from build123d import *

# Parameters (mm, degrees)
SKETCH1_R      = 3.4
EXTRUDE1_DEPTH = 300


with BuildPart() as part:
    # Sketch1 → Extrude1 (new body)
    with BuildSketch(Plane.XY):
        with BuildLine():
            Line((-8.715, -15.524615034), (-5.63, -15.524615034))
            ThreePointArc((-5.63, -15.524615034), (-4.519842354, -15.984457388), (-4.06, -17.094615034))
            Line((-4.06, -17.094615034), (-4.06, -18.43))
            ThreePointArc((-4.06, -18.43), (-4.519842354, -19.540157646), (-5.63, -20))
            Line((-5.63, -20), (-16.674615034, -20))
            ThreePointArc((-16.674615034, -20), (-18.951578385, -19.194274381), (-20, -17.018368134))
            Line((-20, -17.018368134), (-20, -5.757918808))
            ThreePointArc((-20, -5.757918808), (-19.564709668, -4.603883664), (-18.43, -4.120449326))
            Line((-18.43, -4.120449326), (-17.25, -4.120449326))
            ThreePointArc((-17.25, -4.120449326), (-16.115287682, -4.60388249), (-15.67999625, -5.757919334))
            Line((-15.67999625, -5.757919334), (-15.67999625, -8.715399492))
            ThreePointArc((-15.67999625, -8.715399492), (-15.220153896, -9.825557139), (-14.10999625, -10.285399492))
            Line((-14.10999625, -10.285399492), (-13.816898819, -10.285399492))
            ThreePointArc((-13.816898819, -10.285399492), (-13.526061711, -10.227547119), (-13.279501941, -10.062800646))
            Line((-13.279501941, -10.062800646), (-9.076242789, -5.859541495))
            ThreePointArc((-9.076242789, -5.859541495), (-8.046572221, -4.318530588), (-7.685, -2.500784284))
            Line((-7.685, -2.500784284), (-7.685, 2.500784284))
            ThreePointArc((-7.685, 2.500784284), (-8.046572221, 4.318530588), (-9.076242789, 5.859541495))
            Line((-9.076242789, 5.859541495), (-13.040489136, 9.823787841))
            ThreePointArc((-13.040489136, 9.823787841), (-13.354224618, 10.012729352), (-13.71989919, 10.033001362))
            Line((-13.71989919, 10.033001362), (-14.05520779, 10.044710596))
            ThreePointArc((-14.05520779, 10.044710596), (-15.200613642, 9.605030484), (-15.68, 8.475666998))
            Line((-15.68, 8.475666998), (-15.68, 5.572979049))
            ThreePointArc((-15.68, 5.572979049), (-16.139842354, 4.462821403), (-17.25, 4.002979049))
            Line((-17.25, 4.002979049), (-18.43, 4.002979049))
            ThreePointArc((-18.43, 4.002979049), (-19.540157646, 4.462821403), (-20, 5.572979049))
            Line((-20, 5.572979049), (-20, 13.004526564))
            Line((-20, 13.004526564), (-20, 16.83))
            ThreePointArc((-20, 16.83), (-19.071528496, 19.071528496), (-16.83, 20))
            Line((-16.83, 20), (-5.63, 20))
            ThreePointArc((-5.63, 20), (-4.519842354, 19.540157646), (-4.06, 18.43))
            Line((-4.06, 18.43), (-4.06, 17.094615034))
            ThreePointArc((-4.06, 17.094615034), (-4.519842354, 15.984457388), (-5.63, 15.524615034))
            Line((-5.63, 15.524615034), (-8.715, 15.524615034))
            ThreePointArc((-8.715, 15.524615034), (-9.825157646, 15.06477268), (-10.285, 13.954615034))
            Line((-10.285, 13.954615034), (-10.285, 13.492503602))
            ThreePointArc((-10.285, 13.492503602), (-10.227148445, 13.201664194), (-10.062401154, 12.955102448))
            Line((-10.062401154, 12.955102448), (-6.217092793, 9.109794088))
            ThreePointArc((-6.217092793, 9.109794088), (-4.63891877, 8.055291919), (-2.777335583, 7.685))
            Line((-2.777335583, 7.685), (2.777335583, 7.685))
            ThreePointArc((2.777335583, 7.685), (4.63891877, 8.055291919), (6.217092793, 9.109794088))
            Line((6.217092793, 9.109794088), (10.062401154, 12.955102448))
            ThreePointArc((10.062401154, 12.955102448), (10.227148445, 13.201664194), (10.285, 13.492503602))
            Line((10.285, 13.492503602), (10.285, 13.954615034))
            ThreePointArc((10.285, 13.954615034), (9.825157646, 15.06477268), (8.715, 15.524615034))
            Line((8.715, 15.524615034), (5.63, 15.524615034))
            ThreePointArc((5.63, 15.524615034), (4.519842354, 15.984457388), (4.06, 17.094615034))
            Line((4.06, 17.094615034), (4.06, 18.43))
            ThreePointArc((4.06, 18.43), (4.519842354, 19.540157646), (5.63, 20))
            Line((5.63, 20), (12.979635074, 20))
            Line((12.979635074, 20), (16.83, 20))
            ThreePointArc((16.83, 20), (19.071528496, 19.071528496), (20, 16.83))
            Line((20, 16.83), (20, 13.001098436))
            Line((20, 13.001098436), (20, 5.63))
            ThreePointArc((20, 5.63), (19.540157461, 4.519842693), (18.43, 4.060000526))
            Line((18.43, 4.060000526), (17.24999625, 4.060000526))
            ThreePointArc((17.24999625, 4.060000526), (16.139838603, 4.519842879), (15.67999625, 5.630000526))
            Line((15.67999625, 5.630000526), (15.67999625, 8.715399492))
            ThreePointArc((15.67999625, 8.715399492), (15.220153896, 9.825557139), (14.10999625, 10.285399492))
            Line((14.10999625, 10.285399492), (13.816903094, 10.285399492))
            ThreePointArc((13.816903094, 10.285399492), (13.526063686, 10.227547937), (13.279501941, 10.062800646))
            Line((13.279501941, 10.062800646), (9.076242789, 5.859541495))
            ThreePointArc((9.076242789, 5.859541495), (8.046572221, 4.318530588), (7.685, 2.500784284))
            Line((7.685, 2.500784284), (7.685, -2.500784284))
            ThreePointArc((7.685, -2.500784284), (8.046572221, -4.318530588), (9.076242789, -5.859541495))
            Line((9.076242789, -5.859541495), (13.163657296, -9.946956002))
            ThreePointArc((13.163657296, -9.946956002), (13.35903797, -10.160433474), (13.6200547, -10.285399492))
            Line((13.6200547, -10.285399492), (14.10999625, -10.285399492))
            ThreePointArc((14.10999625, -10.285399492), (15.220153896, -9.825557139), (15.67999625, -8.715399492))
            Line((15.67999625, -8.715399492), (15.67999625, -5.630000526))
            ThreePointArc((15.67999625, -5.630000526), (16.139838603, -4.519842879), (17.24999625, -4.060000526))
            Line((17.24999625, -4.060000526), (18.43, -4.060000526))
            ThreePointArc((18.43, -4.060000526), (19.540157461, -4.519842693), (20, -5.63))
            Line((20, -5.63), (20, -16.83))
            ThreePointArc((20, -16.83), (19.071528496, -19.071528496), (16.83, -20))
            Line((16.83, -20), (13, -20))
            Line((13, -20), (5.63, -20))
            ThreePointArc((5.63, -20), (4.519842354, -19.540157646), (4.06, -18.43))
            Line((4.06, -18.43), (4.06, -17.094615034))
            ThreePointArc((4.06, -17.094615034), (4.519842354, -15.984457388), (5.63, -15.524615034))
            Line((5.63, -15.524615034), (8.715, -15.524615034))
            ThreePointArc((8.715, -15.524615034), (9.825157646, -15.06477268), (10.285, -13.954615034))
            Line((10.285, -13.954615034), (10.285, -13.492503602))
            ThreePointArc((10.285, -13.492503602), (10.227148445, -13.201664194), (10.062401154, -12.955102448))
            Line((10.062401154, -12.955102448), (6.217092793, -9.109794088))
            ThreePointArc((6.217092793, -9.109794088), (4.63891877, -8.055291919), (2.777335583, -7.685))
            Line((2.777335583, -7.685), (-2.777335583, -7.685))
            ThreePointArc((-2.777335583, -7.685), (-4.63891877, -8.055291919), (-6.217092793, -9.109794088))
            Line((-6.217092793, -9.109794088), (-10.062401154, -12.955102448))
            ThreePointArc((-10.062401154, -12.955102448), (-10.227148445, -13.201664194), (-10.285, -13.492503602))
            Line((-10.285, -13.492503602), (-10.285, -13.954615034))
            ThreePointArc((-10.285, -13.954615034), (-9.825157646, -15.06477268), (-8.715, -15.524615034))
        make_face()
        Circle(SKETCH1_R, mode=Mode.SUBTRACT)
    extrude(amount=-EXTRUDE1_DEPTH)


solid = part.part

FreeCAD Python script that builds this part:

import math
import FreeCAD as App
import Part
import Sketcher
Q = App.Units.Quantity

doc = App.newDocument("Part")
params = doc.addObject("Spreadsheet::Sheet", "Params")
for row, (alias, value) in enumerate([
    ("sketch1_diameter", "6.8 mm"),
    ("sketch1_radius", "1.57 mm"),
    ("sketch1_radius2", "0.76 mm"),
    ("sketch1_radius3", "3.17 mm"),
    ("sketch1_radius4", "4.75 mm"),
    ("pad1_length", "300 mm"),
], start=1):
    params.set(f"A{row}", alias)
    params.set(f"B{row}", "=" + value)
    params.setAlias(f"B{row}", alias)

body = doc.addObject("PartDesign::Body", "Body")

# Sketch on XY plane
sketch1 = body.newObject("Sketcher::SketchObject", "Sketch")
sketch1.AttachmentSupport = (doc.getObject("XY_Plane"), [""])
sketch1.MapMode = "FlatFace"
sketch1.addGeometry(Part.LineSegment(App.Vector(-5.63, -15.52, 0), App.Vector(-8.71, -15.52, 0)), False)
sketch1.addGeometry(Part.ArcOfCircle(Part.Circle(App.Vector(-8.71, -13.95, 0), App.Vector(0, 0, 1), 1.57), math.radians(-180), math.radians(-90)), False)
sketch1.addGeometry(Part.LineSegment(App.Vector(-10.29, -13.95, 0), App.Vector(-10.29, -13.49, 0)), False)
sketch1.addGeometry(Part.ArcOfCircle(Part.Circle(App.Vector(-9.52, -13.49, 0), App.Vector(0, 0, 1), 0.76), math.radians(135), math.radians(180)), False)
sketch1.addGeometry(Part.LineSegment(App.Vector(-10.06, -12.96, 0), App.Vector(-6.22, -9.11, 0)), False)
sketch1.addGeometry(Part.ArcOfCircle(Part.Circle(App.Vector(-2.78, -12.55, 0), App.Vector(0, 0, 1), 4.86), math.radians(90), math.radians(135)), False)
sketch1.addGeometry(Part.LineSegment(App.Vector(-2.78, -7.68, 0), App.Vector(2.78, -7.68, 0)), False)
sketch1.addGeometry(Part.ArcOfCircle(Part.Circle(App.Vector(2.78, -12.55, 0), App.Vector(0, 0, 1), 4.86), math.radians(45), math.radians(90)), False)
sketch1.addGeometry(Part.LineSegment(App.Vector(6.22, -9.11, 0), App.Vector(10.06, -12.96, 0)), False)
sketch1.addGeometry(Part.ArcOfCircle(Part.Circle(App.Vector(9.52, -13.49, 0), App.Vector(0, 0, 1), 0.76), math.radians(0), math.radians(45)), False)
sketch1.addGeometry(Part.LineSegment(App.Vector(10.29, -13.49, 0), App.Vector(10.29, -13.95, 0)), False)
sketch1.addGeometry(Part.ArcOfCircle(Part.Circle(App.Vector(8.71, -13.95, 0), App.Vector(0, 0, 1), 1.57), math.radians(-90), math.radians(0)), False)
sketch1.addGeometry(Part.LineSegment(App.Vector(8.71, -15.52, 0), App.Vector(5.63, -15.52, 0)), False)
sketch1.addGeometry(Part.ArcOfCircle(Part.Circle(App.Vector(5.63, -17.09, 0), App.Vector(0, 0, 1), 1.57), math.radians(90), math.radians(180)), False)
sketch1.addGeometry(Part.LineSegment(App.Vector(4.06, -17.09, 0), App.Vector(4.06, -18.43, 0)), False)
sketch1.addGeometry(Part.ArcOfCircle(Part.Circle(App.Vector(5.63, -18.43, 0), App.Vector(0, 0, 1), 1.57), math.radians(-180), math.radians(-90)), False)
sketch1.addGeometry(Part.LineSegment(App.Vector(5.63, -20, 0), App.Vector(16.83, -20, 0)), False)
sketch1.addGeometry(Part.ArcOfCircle(Part.Circle(App.Vector(16.83, -16.83, 0), App.Vector(0, 0, 1), 3.17), math.radians(-90), math.radians(0)), False)
sketch1.addGeometry(Part.LineSegment(App.Vector(20, -16.83, 0), App.Vector(20, -5.63, 0)), False)
sketch1.addGeometry(Part.ArcOfCircle(Part.Circle(App.Vector(18.43, -5.63, 0), App.Vector(0, 0, 1), 1.57), math.radians(0), math.radians(90)), False)
sketch1.addGeometry(Part.LineSegment(App.Vector(18.43, -4.06, 0), App.Vector(17.25, -4.06, 0)), False)
sketch1.addGeometry(Part.ArcOfCircle(Part.Circle(App.Vector(17.25, -5.63, 0), App.Vector(0, 0, 1), 1.57), math.radians(90), math.radians(180)), False)
sketch1.addGeometry(Part.LineSegment(App.Vector(15.68, -5.63, 0), App.Vector(15.68, -8.72, 0)), False)
sketch1.addGeometry(Part.ArcOfCircle(Part.Circle(App.Vector(14.11, -8.72, 0), App.Vector(0, 0, 1), 1.57), math.radians(-90), math.radians(0)), False)
sketch1.addGeometry(Part.LineSegment(App.Vector(14.11, -10.29, 0), App.Vector(13.62, -10.29, 0)), False)
sketch1.addGeometry(Part.ArcOfCircle(Part.Circle(App.Vector(13.81, -9.55, 0), App.Vector(0, 0, 1), 0.76), math.radians(-149), math.radians(-105)), False)
sketch1.addGeometry(Part.LineSegment(App.Vector(13.16, -9.95, 0), App.Vector(9.08, -5.86, 0)), False)
sketch1.addGeometry(Part.ArcOfCircle(Part.Circle(App.Vector(12.44, -2.5, 0), App.Vector(0, 0, 1), 4.75), math.radians(-180), math.radians(-135)), False)
sketch1.addGeometry(Part.LineSegment(App.Vector(7.68, -2.5, 0), App.Vector(7.68, 2.5, 0)), False)
sketch1.addGeometry(Part.ArcOfCircle(Part.Circle(App.Vector(12.44, 2.5, 0), App.Vector(0, 0, 1), 4.75), math.radians(135), math.radians(180)), False)
sketch1.addGeometry(Part.LineSegment(App.Vector(9.08, 5.86, 0), App.Vector(13.28, 10.06, 0)), False)
sketch1.addGeometry(Part.ArcOfCircle(Part.Circle(App.Vector(13.82, 9.53, 0), App.Vector(0, 0, 1), 0.76), math.radians(90), math.radians(135)), False)
sketch1.addGeometry(Part.LineSegment(App.Vector(13.82, 10.29, 0), App.Vector(14.11, 10.29, 0)), False)
sketch1.addGeometry(Part.ArcOfCircle(Part.Circle(App.Vector(14.11, 8.72, 0), App.Vector(0, 0, 1), 1.57), math.radians(0), math.radians(90)), False)
sketch1.addGeometry(Part.LineSegment(App.Vector(15.68, 8.72, 0), App.Vector(15.68, 5.63, 0)), False)
sketch1.addGeometry(Part.ArcOfCircle(Part.Circle(App.Vector(17.25, 5.63, 0), App.Vector(0, 0, 1), 1.57), math.radians(180), math.radians(270)), False)
sketch1.addGeometry(Part.LineSegment(App.Vector(17.25, 4.06, 0), App.Vector(18.43, 4.06, 0)), False)
sketch1.addGeometry(Part.ArcOfCircle(Part.Circle(App.Vector(18.43, 5.63, 0), App.Vector(0, 0, 1), 1.57), math.radians(-90), math.radians(0)), False)
sketch1.addGeometry(Part.LineSegment(App.Vector(20, 5.63, 0), App.Vector(20, 16.83, 0)), False)
sketch1.addGeometry(Part.ArcOfCircle(Part.Circle(App.Vector(16.83, 16.83, 0), App.Vector(0, 0, 1), 3.17), math.radians(0), math.radians(90)), False)
sketch1.addGeometry(Part.LineSegment(App.Vector(16.83, 20, 0), App.Vector(5.63, 20, 0)), False)
sketch1.addGeometry(Part.ArcOfCircle(Part.Circle(App.Vector(5.63, 18.43, 0), App.Vector(0, 0, 1), 1.57), math.radians(90), math.radians(180)), False)
sketch1.addGeometry(Part.LineSegment(App.Vector(4.06, 18.43, 0), App.Vector(4.06, 17.09, 0)), False)
sketch1.addGeometry(Part.ArcOfCircle(Part.Circle(App.Vector(5.63, 17.09, 0), App.Vector(0, 0, 1), 1.57), math.radians(-180), math.radians(-90)), False)
sketch1.addGeometry(Part.LineSegment(App.Vector(5.63, 15.52, 0), App.Vector(8.71, 15.52, 0)), False)
sketch1.addGeometry(Part.ArcOfCircle(Part.Circle(App.Vector(8.71, 13.95, 0), App.Vector(0, 0, 1), 1.57), math.radians(0), math.radians(90)), False)
sketch1.addGeometry(Part.LineSegment(App.Vector(10.29, 13.95, 0), App.Vector(10.29, 13.49, 0)), False)
sketch1.addGeometry(Part.ArcOfCircle(Part.Circle(App.Vector(9.52, 13.49, 0), App.Vector(0, 0, 1), 0.76), math.radians(-45), math.radians(0)), False)
sketch1.addGeometry(Part.LineSegment(App.Vector(10.06, 12.96, 0), App.Vector(6.22, 9.11, 0)), False)
sketch1.addGeometry(Part.ArcOfCircle(Part.Circle(App.Vector(2.78, 12.55, 0), App.Vector(0, 0, 1), 4.86), math.radians(-90), math.radians(-45)), False)
sketch1.addGeometry(Part.LineSegment(App.Vector(2.78, 7.68, 0), App.Vector(-2.78, 7.68, 0)), False)
sketch1.addGeometry(Part.ArcOfCircle(Part.Circle(App.Vector(-2.78, 12.55, 0), App.Vector(0, 0, 1), 4.86), math.radians(-135), math.radians(-90)), False)
sketch1.addGeometry(Part.LineSegment(App.Vector(-6.22, 9.11, 0), App.Vector(-10.06, 12.96, 0)), False)
sketch1.addGeometry(Part.ArcOfCircle(Part.Circle(App.Vector(-9.52, 13.49, 0), App.Vector(0, 0, 1), 0.76), math.radians(180), math.radians(225)), False)
sketch1.addGeometry(Part.LineSegment(App.Vector(-10.29, 13.49, 0), App.Vector(-10.29, 13.95, 0)), False)
sketch1.addGeometry(Part.ArcOfCircle(Part.Circle(App.Vector(-8.71, 13.95, 0), App.Vector(0, 0, 1), 1.57), math.radians(90), math.radians(180)), False)
sketch1.addGeometry(Part.LineSegment(App.Vector(-8.71, 15.52, 0), App.Vector(-5.63, 15.52, 0)), False)
sketch1.addGeometry(Part.ArcOfCircle(Part.Circle(App.Vector(-5.63, 17.09, 0), App.Vector(0, 0, 1), 1.57), math.radians(-90), math.radians(0)), False)
sketch1.addGeometry(Part.LineSegment(App.Vector(-4.06, 17.09, 0), App.Vector(-4.06, 18.43, 0)), False)
sketch1.addGeometry(Part.ArcOfCircle(Part.Circle(App.Vector(-5.63, 18.43, 0), App.Vector(0, 0, 1), 1.57), math.radians(0), math.radians(90)), False)
sketch1.addGeometry(Part.LineSegment(App.Vector(-5.63, 20, 0), App.Vector(-16.83, 20, 0)), False)
sketch1.addGeometry(Part.ArcOfCircle(Part.Circle(App.Vector(-16.83, 16.83, 0), App.Vector(0, 0, 1), 3.17), math.radians(90), math.radians(180)), False)
sketch1.addGeometry(Part.LineSegment(App.Vector(-20, 16.83, 0), App.Vector(-20, 5.57, 0)), False)
sketch1.addGeometry(Part.ArcOfCircle(Part.Circle(App.Vector(-18.43, 5.57, 0), App.Vector(0, 0, 1), 1.57), math.radians(-180), math.radians(-90)), False)
sketch1.addGeometry(Part.LineSegment(App.Vector(-18.43, 4, 0), App.Vector(-17.25, 4, 0)), False)
sketch1.addGeometry(Part.ArcOfCircle(Part.Circle(App.Vector(-17.25, 5.57, 0), App.Vector(0, 0, 1), 1.57), math.radians(-90), math.radians(0)), False)
sketch1.addGeometry(Part.LineSegment(App.Vector(-15.68, 5.57, 0), App.Vector(-15.68, 8.48, 0)), False)
sketch1.addGeometry(Part.ArcOfCircle(Part.Circle(App.Vector(-14.11, 8.48, 0), App.Vector(0, 0, 1), 1.57), math.radians(88), math.radians(180)), False)
sketch1.addGeometry(Part.LineSegment(App.Vector(-14.06, 10.04, 0), App.Vector(-13.72, 10.03, 0)), False)
sketch1.addGeometry(Part.ArcOfCircle(Part.Circle(App.Vector(-13.58, 9.29, 0), App.Vector(0, 0, 1), 0.76), math.radians(45), math.radians(101)), False)
sketch1.addGeometry(Part.LineSegment(App.Vector(-13.04, 9.82, 0), App.Vector(-9.08, 5.86, 0)), False)
sketch1.addGeometry(Part.ArcOfCircle(Part.Circle(App.Vector(-12.44, 2.5, 0), App.Vector(0, 0, 1), 4.75), math.radians(0), math.radians(45)), False)
sketch1.addGeometry(Part.LineSegment(App.Vector(-7.68, 2.5, 0), App.Vector(-7.68, -2.5, 0)), False)
sketch1.addGeometry(Part.ArcOfCircle(Part.Circle(App.Vector(-12.44, -2.5, 0), App.Vector(0, 0, 1), 4.75), math.radians(-45), math.radians(0)), False)
sketch1.addGeometry(Part.LineSegment(App.Vector(-9.08, -5.86, 0), App.Vector(-13.28, -10.06, 0)), False)
sketch1.addGeometry(Part.ArcOfCircle(Part.Circle(App.Vector(-13.82, -9.53, 0), App.Vector(0, 0, 1), 0.76), math.radians(-90), math.radians(-45)), False)
sketch1.addGeometry(Part.LineSegment(App.Vector(-13.82, -10.29, 0), App.Vector(-14.11, -10.29, 0)), False)
sketch1.addGeometry(Part.ArcOfCircle(Part.Circle(App.Vector(-14.11, -8.72, 0), App.Vector(0, 0, 1), 1.57), math.radians(180), math.radians(270)), False)
sketch1.addGeometry(Part.LineSegment(App.Vector(-15.68, -8.72, 0), App.Vector(-15.68, -5.76, 0)), False)
sketch1.addGeometry(Part.ArcOfCircle(Part.Circle(App.Vector(-17.25, -5.69, 0), App.Vector(0, 0, 1), 1.57), math.radians(-2), math.radians(90)), False)
sketch1.addGeometry(Part.LineSegment(App.Vector(-17.25, -4.12, 0), App.Vector(-18.43, -4.12, 0)), False)
sketch1.addGeometry(Part.ArcOfCircle(Part.Circle(App.Vector(-18.43, -5.69, 0), App.Vector(0, 0, 1), 1.57), math.radians(90), math.radians(182)), False)
sketch1.addGeometry(Part.LineSegment(App.Vector(-20, -5.76, 0), App.Vector(-20, -17.02, 0)), False)
sketch1.addGeometry(Part.ArcOfCircle(Part.Circle(App.Vector(-16.84, -16.83, 0), App.Vector(0, 0, 1), 3.17), math.radians(-177), math.radians(-87)), False)
sketch1.addGeometry(Part.LineSegment(App.Vector(-16.67, -20, 0), App.Vector(-5.63, -20, 0)), False)
sketch1.addGeometry(Part.ArcOfCircle(Part.Circle(App.Vector(-5.63, -18.43, 0), App.Vector(0, 0, 1), 1.57), math.radians(-90), math.radians(0)), False)
sketch1.addGeometry(Part.LineSegment(App.Vector(-4.06, -18.43, 0), App.Vector(-4.06, -17.09, 0)), False)
sketch1.addGeometry(Part.ArcOfCircle(Part.Circle(App.Vector(-5.63, -17.09, 0), App.Vector(0, 0, 1), 1.57), math.radians(0), math.radians(90)), False)
sketch1.addGeometry(Part.Circle(App.Vector(0, 0, 0), App.Vector(0, 0, 1), 3.4), False)
sketch1.addConstraint(Sketcher.Constraint("Tangent", 0, 2, 1, 2))
sketch1.addConstraint(Sketcher.Constraint("Tangent", 1, 1, 2, 1))
sketch1.addConstraint(Sketcher.Constraint("Tangent", 2, 2, 3, 2))
sketch1.addConstraint(Sketcher.Constraint("Tangent", 3, 1, 4, 1))
sketch1.addConstraint(Sketcher.Constraint("Tangent", 4, 2, 5, 2))
sketch1.addConstraint(Sketcher.Constraint("Tangent", 5, 1, 6, 1))
sketch1.addConstraint(Sketcher.Constraint("Tangent", 6, 2, 7, 2))
sketch1.addConstraint(Sketcher.Constraint("Tangent", 7, 1, 8, 1))
sketch1.addConstraint(Sketcher.Constraint("Tangent", 8, 2, 9, 2))
sketch1.addConstraint(Sketcher.Constraint("Tangent", 9, 1, 10, 1))
sketch1.addConstraint(Sketcher.Constraint("Tangent", 10, 2, 11, 2))
sketch1.addConstraint(Sketcher.Constraint("Tangent", 11, 1, 12, 1))
sketch1.addConstraint(Sketcher.Constraint("Tangent", 12, 2, 13, 1))
sketch1.addConstraint(Sketcher.Constraint("Tangent", 13, 2, 14, 1))
sketch1.addConstraint(Sketcher.Constraint("Tangent", 14, 2, 15, 1))
sketch1.addConstraint(Sketcher.Constraint("Tangent", 15, 2, 16, 1))
sketch1.addConstraint(Sketcher.Constraint("Tangent", 16, 2, 17, 1))
sketch1.addConstraint(Sketcher.Constraint("Tangent", 17, 2, 18, 1))
sketch1.addConstraint(Sketcher.Constraint("Tangent", 18, 2, 19, 1))
sketch1.addConstraint(Sketcher.Constraint("Tangent", 19, 2, 20, 1))
sketch1.addConstraint(Sketcher.Constraint("Tangent", 20, 2, 21, 1))
sketch1.addConstraint(Sketcher.Constraint("Tangent", 21, 2, 22, 1))
sketch1.addConstraint(Sketcher.Constraint("Tangent", 22, 2, 23, 2))
sketch1.addConstraint(Sketcher.Constraint("Tangent", 23, 1, 24, 1))
sketch1.addConstraint(Sketcher.Constraint("Coincident", 24, 2, 25, 2))
sketch1.addConstraint(Sketcher.Constraint("Coincident", 25, 1, 26, 1))
sketch1.addConstraint(Sketcher.Constraint("Tangent", 26, 2, 27, 2))
sketch1.addConstraint(Sketcher.Constraint("Tangent", 27, 1, 28, 1))
sketch1.addConstraint(Sketcher.Constraint("Tangent", 28, 2, 29, 2))
sketch1.addConstraint(Sketcher.Constraint("Tangent", 29, 1, 30, 1))
sketch1.addConstraint(Sketcher.Constraint("Tangent", 30, 2, 31, 2))
sketch1.addConstraint(Sketcher.Constraint("Tangent", 31, 1, 32, 1))
sketch1.addConstraint(Sketcher.Constraint("Tangent", 32, 2, 33, 2))
sketch1.addConstraint(Sketcher.Constraint("Tangent", 33, 1, 34, 1))
sketch1.addConstraint(Sketcher.Constraint("Tangent", 34, 2, 35, 1))
sketch1.addConstraint(Sketcher.Constraint("Tangent", 35, 2, 36, 1))
sketch1.addConstraint(Sketcher.Constraint("Tangent", 36, 2, 37, 1))
sketch1.addConstraint(Sketcher.Constraint("Tangent", 37, 2, 38, 1))
sketch1.addConstraint(Sketcher.Constraint("Tangent", 38, 2, 39, 1))
sketch1.addConstraint(Sketcher.Constraint("Tangent", 39, 2, 40, 1))
sketch1.addConstraint(Sketcher.Constraint("Tangent", 40, 2, 41, 1))
sketch1.addConstraint(Sketcher.Constraint("Tangent", 41, 2, 42, 1))
sketch1.addConstraint(Sketcher.Constraint("Tangent", 42, 2, 43, 1))
sketch1.addConstraint(Sketcher.Constraint("Tangent", 43, 2, 44, 1))
sketch1.addConstraint(Sketcher.Constraint("Tangent", 44, 2, 45, 2))
sketch1.addConstraint(Sketcher.Constraint("Tangent", 45, 1, 46, 1))
sketch1.addConstraint(Sketcher.Constraint("Tangent", 46, 2, 47, 2))
sketch1.addConstraint(Sketcher.Constraint("Tangent", 47, 1, 48, 1))
sketch1.addConstraint(Sketcher.Constraint("Tangent", 48, 2, 49, 2))
sketch1.addConstraint(Sketcher.Constraint("Tangent", 49, 1, 50, 1))
sketch1.addConstraint(Sketcher.Constraint("Tangent", 50, 2, 51, 2))
sketch1.addConstraint(Sketcher.Constraint("Tangent", 51, 1, 52, 1))
sketch1.addConstraint(Sketcher.Constraint("Tangent", 52, 2, 53, 2))
sketch1.addConstraint(Sketcher.Constraint("Tangent", 53, 1, 54, 1))
sketch1.addConstraint(Sketcher.Constraint("Tangent", 54, 2, 55, 2))
sketch1.addConstraint(Sketcher.Constraint("Tangent", 55, 1, 56, 1))
sketch1.addConstraint(Sketcher.Constraint("Tangent", 56, 2, 57, 1))
sketch1.addConstraint(Sketcher.Constraint("Tangent", 57, 2, 58, 1))
sketch1.addConstraint(Sketcher.Constraint("Tangent", 58, 2, 59, 1))
sketch1.addConstraint(Sketcher.Constraint("Tangent", 59, 2, 60, 1))
sketch1.addConstraint(Sketcher.Constraint("Tangent", 60, 2, 61, 1))
sketch1.addConstraint(Sketcher.Constraint("Tangent", 61, 2, 62, 1))
sketch1.addConstraint(Sketcher.Constraint("Tangent", 62, 2, 63, 1))
sketch1.addConstraint(Sketcher.Constraint("Tangent", 63, 2, 64, 1))
sketch1.addConstraint(Sketcher.Constraint("Tangent", 64, 2, 65, 1))
sketch1.addConstraint(Sketcher.Constraint("Tangent", 65, 2, 66, 1))
sketch1.addConstraint(Sketcher.Constraint("Tangent", 66, 2, 67, 2))
sketch1.addConstraint(Sketcher.Constraint("Tangent", 67, 1, 68, 1))
sketch1.addConstraint(Sketcher.Constraint("Coincident", 68, 2, 69, 2))
sketch1.addConstraint(Sketcher.Constraint("Tangent", 69, 1, 70, 1))
sketch1.addConstraint(Sketcher.Constraint("Tangent", 70, 2, 71, 2))
sketch1.addConstraint(Sketcher.Constraint("Tangent", 71, 1, 72, 1))
sketch1.addConstraint(Sketcher.Constraint("Tangent", 72, 2, 73, 2))
sketch1.addConstraint(Sketcher.Constraint("Tangent", 73, 1, 74, 1))
sketch1.addConstraint(Sketcher.Constraint("Tangent", 74, 2, 75, 2))
sketch1.addConstraint(Sketcher.Constraint("Coincident", 75, 1, 76, 1))
sketch1.addConstraint(Sketcher.Constraint("Tangent", 76, 2, 77, 2))
sketch1.addConstraint(Sketcher.Constraint("Tangent", 77, 1, 78, 1))
sketch1.addConstraint(Sketcher.Constraint("Coincident", 78, 2, 79, 1))
sketch1.addConstraint(Sketcher.Constraint("Coincident", 79, 2, 80, 1))
sketch1.addConstraint(Sketcher.Constraint("Coincident", 80, 2, 81, 1))
sketch1.addConstraint(Sketcher.Constraint("Coincident", 81, 2, 82, 1))
sketch1.addConstraint(Sketcher.Constraint("Coincident", 82, 2, 83, 1))
sketch1.addConstraint(Sketcher.Constraint("Coincident", 83, 2, 84, 1))
sketch1.addConstraint(Sketcher.Constraint("Tangent", 84, 2, 85, 1))
sketch1.addConstraint(Sketcher.Constraint("Tangent", 85, 2, 86, 1))
sketch1.addConstraint(Sketcher.Constraint("Tangent", 86, 2, 87, 1))
sketch1.addConstraint(Sketcher.Constraint("Tangent", 87, 2, 0, 1))
sketch1.addConstraint(Sketcher.Constraint("Horizontal", 0))
sketch1.addConstraint(Sketcher.Constraint("Vertical", 2))
sketch1.addConstraint(Sketcher.Constraint("Horizontal", 6))
sketch1.addConstraint(Sketcher.Constraint("Vertical", 10))
sketch1.addConstraint(Sketcher.Constraint("Horizontal", 12))
sketch1.addConstraint(Sketcher.Constraint("Vertical", 14))
sketch1.addConstraint(Sketcher.Constraint("Horizontal", 16))
sketch1.addConstraint(Sketcher.Constraint("Vertical", 18))
sketch1.addConstraint(Sketcher.Constraint("Horizontal", 20))
sketch1.addConstraint(Sketcher.Constraint("Vertical", 22))
sketch1.addConstraint(Sketcher.Constraint("Horizontal", 24))
sketch1.addConstraint(Sketcher.Constraint("Vertical", 28))
sketch1.addConstraint(Sketcher.Constraint("Horizontal", 32))
sketch1.addConstraint(Sketcher.Constraint("Vertical", 34))
sketch1.addConstraint(Sketcher.Constraint("Horizontal", 36))
sketch1.addConstraint(Sketcher.Constraint("Vertical", 38))
sketch1.addConstraint(Sketcher.Constraint("Horizontal", 40))
sketch1.addConstraint(Sketcher.Constraint("Vertical", 42))
sketch1.addConstraint(Sketcher.Constraint("Horizontal", 44))
sketch1.addConstraint(Sketcher.Constraint("Vertical", 46))
sketch1.addConstraint(Sketcher.Constraint("Horizontal", 50))
sketch1.addConstraint(Sketcher.Constraint("Vertical", 54))
sketch1.addConstraint(Sketcher.Constraint("Horizontal", 56))
sketch1.addConstraint(Sketcher.Constraint("Vertical", 58))
sketch1.addConstraint(Sketcher.Constraint("Horizontal", 60))
sketch1.addConstraint(Sketcher.Constraint("Vertical", 62))
sketch1.addConstraint(Sketcher.Constraint("Horizontal", 64))
sketch1.addConstraint(Sketcher.Constraint("Vertical", 66))
sketch1.addConstraint(Sketcher.Constraint("Vertical", 72))
sketch1.addConstraint(Sketcher.Constraint("Horizontal", 76))
sketch1.addConstraint(Sketcher.Constraint("Vertical", 78))
sketch1.addConstraint(Sketcher.Constraint("Horizontal", 80))
sketch1.addConstraint(Sketcher.Constraint("Vertical", 82))
sketch1.addConstraint(Sketcher.Constraint("Horizontal", 84))
sketch1.addConstraint(Sketcher.Constraint("Vertical", 86))
sketch1.addConstraint(Sketcher.Constraint("Coincident", 88, 3, -1, 1))
sketch1.addConstraint(Sketcher.Constraint("Equal", 5, 7))
sketch1.addConstraint(Sketcher.Constraint("Equal", 3, 9))
sketch1.addConstraint(Sketcher.Constraint("Equal", 1, 11))
sketch1.addConstraint(Sketcher.Constraint("Equal", 11, 13))
sketch1.addConstraint(Sketcher.Constraint("Equal", 13, 15))
sketch1.addConstraint(Sketcher.Constraint("Equal", 15, 19))
sketch1.addConstraint(Sketcher.Constraint("Equal", 19, 21))
sketch1.addConstraint(Sketcher.Constraint("Equal", 21, 23))
sketch1.addConstraint(Sketcher.Constraint("Equal", 9, 25))
sketch1.addConstraint(Sketcher.Constraint("Equal", 27, 29))
sketch1.addConstraint(Sketcher.Constraint("Equal", 25, 31))
sketch1.addConstraint(Sketcher.Constraint("Equal", 23, 33))
sketch1.addConstraint(Sketcher.Constraint("Equal", 33, 35))
sketch1.addConstraint(Sketcher.Constraint("Equal", 35, 37))
sketch1.addConstraint(Sketcher.Constraint("Equal", 17, 39))
sketch1.addConstraint(Sketcher.Constraint("Equal", 37, 41))
sketch1.addConstraint(Sketcher.Constraint("Equal", 41, 43))
sketch1.addConstraint(Sketcher.Constraint("Equal", 43, 45))
sketch1.addConstraint(Sketcher.Constraint("Equal", 31, 47))
sketch1.addConstraint(Sketcher.Constraint("Equal", 7, 49))
sketch1.addConstraint(Sketcher.Constraint("Equal", 49, 51))
sketch1.addConstraint(Sketcher.Constraint("Equal", 47, 53))
sketch1.addConstraint(Sketcher.Constraint("Equal", 45, 55))
sketch1.addConstraint(Sketcher.Constraint("Equal", 55, 57))
sketch1.addConstraint(Sketcher.Constraint("Equal", 57, 59))
sketch1.addConstraint(Sketcher.Constraint("Equal", 39, 61))
sketch1.addConstraint(Sketcher.Constraint("Equal", 59, 63))
sketch1.addConstraint(Sketcher.Constraint("Equal", 63, 65))
sketch1.addConstraint(Sketcher.Constraint("Equal", 65, 67))
sketch1.addConstraint(Sketcher.Constraint("Equal", 53, 69))
sketch1.addConstraint(Sketcher.Constraint("Equal", 29, 71))
sketch1.addConstraint(Sketcher.Constraint("Equal", 71, 73))
sketch1.addConstraint(Sketcher.Constraint("Equal", 69, 75))
sketch1.addConstraint(Sketcher.Constraint("Equal", 67, 77))
sketch1.addConstraint(Sketcher.Constraint("Equal", 77, 79))
sketch1.addConstraint(Sketcher.Constraint("Equal", 79, 81))
sketch1.addConstraint(Sketcher.Constraint("Equal", 61, 83))
sketch1.addConstraint(Sketcher.Constraint("Equal", 81, 85))
sketch1.addConstraint(Sketcher.Constraint("Equal", 85, 87))
sketch1.addConstraint(Sketcher.Constraint("Symmetric", 1, 3, 45, 3, -1, 1))
sketch1.addConstraint(Sketcher.Constraint("Symmetric", 5, 3, 49, 3, -1, 1))
sketch1.addConstraint(Sketcher.Constraint("Symmetric", 9, 3, 53, 3, -1, 1))
sketch1.addConstraint(Sketcher.Constraint("Symmetric", 13, 3, 57, 3, -1, 1))
sketch1.addConstraint(Sketcher.Constraint("Symmetric", 17, 3, 61, 3, -1, 1))
sketch1.addConstraint(Sketcher.Constraint("Symmetric", 27, 3, 71, 3, -1, 1))
sketch1.addConstraint(Sketcher.Constraint("Symmetric", 31, 3, 75, 3, -1, 1))
sketch1.addConstraint(Sketcher.Constraint("Symmetric", 41, 3, 85, 3, -1, 1))
sketch1.addConstraint(Sketcher.Constraint("Symmetric", 3, 3, 9, 3, -2))
sketch1.addConstraint(Sketcher.Constraint("Symmetric", 43, 3, 57, 3, -2))
sketch1.addConstraint(Sketcher.Constraint("Symmetric", 39, 3, 61, 3, -2))
sketch1.addConstraint(Sketcher.Constraint("Symmetric", 23, 3, 77, 3, -2))
sketch1.addConstraint(Sketcher.Constraint("Symmetric", 48, 2, 51, 1, -2))
sketch1.addConstraint(Sketcher.Constraint("Symmetric", 29, 1, 70, 2, -2))
sketch1.addConstraint(Sketcher.Constraint("Symmetric", 26, 2, 73, 1, -2))
sketch1.addConstraint(Sketcher.Constraint("Symmetric", 21, 3, 35, 3, -1))
sketch1.addConstraint(Sketcher.Constraint("Perpendicular", 4, 8))
sketch1.addConstraint(Sketcher.Constraint("Parallel", 8, 26))
sketch1.addConstraint(Sketcher.Constraint("Perpendicular", 26, 30))
sketch1.addConstraint(Sketcher.Constraint("Horizontal", 78, 2, 81, 2))
sketch1.addConstraint(Sketcher.Constraint("Vertical", 64, 2, 79, 2))
sketch1.addConstraint(Sketcher.Constraint("Vertical", 63, 2, 80, 2))
sketch1.addConstraint(Sketcher.Constraint("Vertical", 62, 2, 81, 2))
sketch1.addConstraint(Sketcher.Constraint("Equal", 60, 18))
sketch1.addConstraint(Sketcher.Constraint("Diameter", 88, 6.8))
sketch1.addConstraint(Sketcher.Constraint("Angle", 68, Q("-2 deg")))
sketch1.addConstraint(Sketcher.Constraint("Radius", 1, 1.57))
sketch1.addConstraint(Sketcher.Constraint("Radius", 3, 0.76))
sketch1.addConstraint(Sketcher.Constraint("Radius", 17, 3.17))
sketch1.addConstraint(Sketcher.Constraint("Radius", 27, 4.75))
sketch1.addConstraint(Sketcher.Constraint("DistanceX", 16, 1, 16, 2, 11.2))
sketch1.addConstraint(Sketcher.Constraint("DistanceY", 15, 2, -1, 1, 20.0))
sketch1.addConstraint(Sketcher.Constraint("DistanceX", -1, 1, 17, 2, 20.0))
sketch1.addConstraint(Sketcher.Constraint("DistanceX", 64, 1, 64, 2, 1.18))
sketch1.addConstraint(Sketcher.Constraint("DistanceX", 0, 2, 0, 1, 3.085))
sketch1.addConstraint(Sketcher.Constraint("Radius", 5, 4.864551))
sketch1.addConstraint(Sketcher.Constraint("DistanceY", 22, 2, 22, 1, 3.085399))
sketch1.addConstraint(Sketcher.Constraint("DistanceX", -1, 1, 27, 3, 12.435))
sketch1.addConstraint(Sketcher.Constraint("DistanceY", 5, 1, -1, 1, 7.685))
sketch1.addConstraint(Sketcher.Constraint("DistanceY", -1, 1, 68, 2, 10.033001))
sketch1.addConstraint(Sketcher.Constraint("DistanceX", 6, 1, 6, 2, 5.554671))
sketch1.addConstraint(Sketcher.Constraint("DistanceX", 24, 2, 24, 1, 0.489942))
sketch1.addConstraint(Sketcher.Constraint("DistanceY", 2, 1, 2, 2, 0.462111))
sketch1.addConstraint(Sketcher.Constraint("DistanceY", 28, 1, 28, 2, 5.001569))
sketch1.addConstraint(Sketcher.Constraint("DistanceY", 62, 2, 62, 1, 11.257021))
sketch1.addConstraint(Sketcher.Constraint("DistanceY", 78, 1, 78, 2, 2.95748))
sketch1.addConstraint(Sketcher.Constraint("DistanceY", 82, 2, 82, 1, 11.260449))
sketch1.addConstraint(Sketcher.Constraint("DistanceX", 68, 2, -1, 1, 13.719899))
sketch1.addConstraint(Sketcher.Constraint("DistanceX", 75, 1, -1, 1, 13.816899))
sketch1.addConstraint(Sketcher.Constraint("DistanceX", 20, 2, 20, 1, 1.180004))
sketch1.addConstraint(Sketcher.Constraint("DistanceX", 84, 1, 84, 2, 11.044615))
sketch1.addConstraint(Sketcher.Constraint("DistanceX", -1, 1, 25, 3, 13.811732))
sketch1.addConstraint(Sketcher.Constraint("DistanceY", 79, 3, -1, 1, 5.690449))
sketch1.setExpression("Constraints[187]", "Params.sketch1_diameter")
sketch1.setExpression("Constraints[189]", "Params.sketch1_radius")
sketch1.setExpression("Constraints[190]", "Params.sketch1_radius2")
sketch1.setExpression("Constraints[191]", "Params.sketch1_radius3")
sketch1.setExpression("Constraints[192]", "Params.sketch1_radius4")
pad1 = body.newObject("PartDesign::Pad", "Pad")
pad1.Profile = sketch1
pad1.setExpression("Length", "Params.pad1_length")
pad1.Reversed = True

doc.recompute()
